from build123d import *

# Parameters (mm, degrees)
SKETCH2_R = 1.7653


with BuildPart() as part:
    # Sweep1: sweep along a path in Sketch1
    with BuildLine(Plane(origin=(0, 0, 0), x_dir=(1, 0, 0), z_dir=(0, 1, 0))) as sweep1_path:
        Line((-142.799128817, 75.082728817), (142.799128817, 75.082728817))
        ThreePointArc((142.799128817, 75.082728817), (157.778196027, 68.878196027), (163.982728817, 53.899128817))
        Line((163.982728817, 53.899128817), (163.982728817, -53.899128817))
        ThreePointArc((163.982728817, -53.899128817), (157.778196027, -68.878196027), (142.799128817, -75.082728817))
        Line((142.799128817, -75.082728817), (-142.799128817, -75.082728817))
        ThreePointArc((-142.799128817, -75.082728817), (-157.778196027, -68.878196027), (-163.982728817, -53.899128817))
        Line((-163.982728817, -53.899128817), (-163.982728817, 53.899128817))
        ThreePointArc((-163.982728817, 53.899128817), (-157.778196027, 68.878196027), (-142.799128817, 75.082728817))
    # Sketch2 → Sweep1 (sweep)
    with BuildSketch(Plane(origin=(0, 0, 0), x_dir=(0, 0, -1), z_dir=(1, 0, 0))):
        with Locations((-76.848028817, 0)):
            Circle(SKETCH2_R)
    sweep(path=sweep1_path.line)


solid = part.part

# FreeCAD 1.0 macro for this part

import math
import FreeCAD as App
import Part
import Sketcher
from FreeCAD import Vector
Q = App.Units.Quantity

doc = App.newDocument("Part")
params = doc.addObject("Spreadsheet::Sheet", "Params")
for row, (alias, value) in enumerate([
    ("sketch1_diameter", "0.139 in"),
    ("sketch2_radius", "0.834 in"),
], start=1):
    params.set(f"A{row}", alias)
    params.set(f"B{row}", "=" + value)
    params.setAlias(f"B{row}", alias)

body = doc.addObject("PartDesign::Body", "Body")

# Sketch on YZ plane
sketch1 = doc.addObject("Sketcher::SketchObject", "Sketch")
body.addObject(sketch1)
sketch1.AttachmentSupport = (doc.YZ_Plane, [""])
sketch1.MapMode = "FlatFace"
sketch1.addGeometry(Part.Circle(Vector(0, 76.848029, 0), Vector(0, 0, 1), 1.7653), False)
sketch1.addConstraint([
    Sketcher.Constraint("PointOnObject", 0, 3, -2),
    Sketcher.Constraint("Diameter", 0, Q("0.139 in")),
    Sketcher.Constraint("DistanceY", -1, 1, 0, 3, 76.848029),
])
sketch1.setExpression("Constraints[1]", "Params.sketch1_diameter")

# Sketch on XZ plane
sketch2 = doc.addObject("Sketcher::SketchObject", "Sketch001")
body.addObject(sketch2)
sketch2.AttachmentSupport = (doc.XZ_Plane, [""])
sketch2.MapMode = "FlatFace"
sketch2.addGeometry([
    Part.LineSegment(Vector(-142.799129, -75.082729, 0), Vector(142.799129, -75.082729, 0)),  # 0
    Part.ArcOfCircle(Part.Circle(Vector(142.799129, -53.899129, 0), Vector(0, 0, 1), 21.1836), math.radians(-90), math.radians(0)),  # 1
    Part.LineSegment(Vector(163.982729, -53.899129, 0), Vector(163.982729, 53.899129, 0)),  # 2
    Part.ArcOfCircle(Part.Circle(Vector(142.799129, 53.899129, 0), Vector(0, 0, 1), 21.1836), math.radians(0), math.radians(90)),  # 3
    Part.LineSegment(Vector(142.799129, 75.082729, 0), Vector(-142.799129, 75.082729, 0)),  # 4
    Part.ArcOfCircle(Part.Circle(Vector(-142.799129, 53.899129, 0), Vector(0, 0, 1), 21.1836), math.radians(90), math.radians(180)),  # 5
    Part.LineSegment(Vector(-163.982729, 53.899129, 0), Vector(-163.982729, -53.899129, 0)),  # 6
    Part.ArcOfCircle(Part.Circle(Vector(-142.799129, -53.899129, 0), Vector(0, 0, 1), 21.1836), math.radians(180), math.radians(270)),  # 7
], False)
sketch2.addConstraint([
    Sketcher.Constraint("Tangent", 0, 2, 1, 1),
    Sketcher.Constraint("Tangent", 1, 2, 2, 1),
    Sketcher.Constraint("Tangent", 2, 2, 3, 1),
    Sketcher.Constraint("Tangent", 3, 2, 4, 1),
    Sketcher.Constraint("Tangent", 4, 2, 5, 1),
    Sketcher.Constraint("Tangent", 5, 2, 6, 1),
    Sketcher.Constraint("Tangent", 6, 2, 7, 1),
    Sketcher.Constraint("Tangent", 7, 2, 0, 1),
    Sketcher.Constraint("Horizontal", 0),
    Sketcher.Constraint("Vertical", 2),
    Sketcher.Constraint("Horizontal", 4),
    Sketcher.Constraint("Vertical", 6),
    Sketcher.Constraint("Equal", 1, 3),
    Sketcher.Constraint("Equal", 3, 5),
    Sketcher.Constraint("Equal", 5, 7),
    Sketcher.Constraint("Symmetric", 1, 3, 5, 3, -1, 1),
    Sketcher.Constraint("Radius", 1, Q("0.834 in")),
    Sketcher.Constraint("DistanceX", 0, 1, 0, 2, 285.598258),
    Sketcher.Constraint("DistanceY", 2, 1, 2, 2, 107.798258),
])
sketch2.setExpression("Constraints[16]", "Params.sketch2_radius")
doc.recompute()

additivepipe = doc.addObject("PartDesign::AdditivePipe", "AdditivePipe")
body.addObject(additivepipe)
additivepipe.Profile = sketch1
additivepipe.Spine = (sketch2, ["Edge1", "Edge2", "Edge3", "Edge4", "Edge5", "Edge6", "Edge7", "Edge8"])

doc.recompute()
